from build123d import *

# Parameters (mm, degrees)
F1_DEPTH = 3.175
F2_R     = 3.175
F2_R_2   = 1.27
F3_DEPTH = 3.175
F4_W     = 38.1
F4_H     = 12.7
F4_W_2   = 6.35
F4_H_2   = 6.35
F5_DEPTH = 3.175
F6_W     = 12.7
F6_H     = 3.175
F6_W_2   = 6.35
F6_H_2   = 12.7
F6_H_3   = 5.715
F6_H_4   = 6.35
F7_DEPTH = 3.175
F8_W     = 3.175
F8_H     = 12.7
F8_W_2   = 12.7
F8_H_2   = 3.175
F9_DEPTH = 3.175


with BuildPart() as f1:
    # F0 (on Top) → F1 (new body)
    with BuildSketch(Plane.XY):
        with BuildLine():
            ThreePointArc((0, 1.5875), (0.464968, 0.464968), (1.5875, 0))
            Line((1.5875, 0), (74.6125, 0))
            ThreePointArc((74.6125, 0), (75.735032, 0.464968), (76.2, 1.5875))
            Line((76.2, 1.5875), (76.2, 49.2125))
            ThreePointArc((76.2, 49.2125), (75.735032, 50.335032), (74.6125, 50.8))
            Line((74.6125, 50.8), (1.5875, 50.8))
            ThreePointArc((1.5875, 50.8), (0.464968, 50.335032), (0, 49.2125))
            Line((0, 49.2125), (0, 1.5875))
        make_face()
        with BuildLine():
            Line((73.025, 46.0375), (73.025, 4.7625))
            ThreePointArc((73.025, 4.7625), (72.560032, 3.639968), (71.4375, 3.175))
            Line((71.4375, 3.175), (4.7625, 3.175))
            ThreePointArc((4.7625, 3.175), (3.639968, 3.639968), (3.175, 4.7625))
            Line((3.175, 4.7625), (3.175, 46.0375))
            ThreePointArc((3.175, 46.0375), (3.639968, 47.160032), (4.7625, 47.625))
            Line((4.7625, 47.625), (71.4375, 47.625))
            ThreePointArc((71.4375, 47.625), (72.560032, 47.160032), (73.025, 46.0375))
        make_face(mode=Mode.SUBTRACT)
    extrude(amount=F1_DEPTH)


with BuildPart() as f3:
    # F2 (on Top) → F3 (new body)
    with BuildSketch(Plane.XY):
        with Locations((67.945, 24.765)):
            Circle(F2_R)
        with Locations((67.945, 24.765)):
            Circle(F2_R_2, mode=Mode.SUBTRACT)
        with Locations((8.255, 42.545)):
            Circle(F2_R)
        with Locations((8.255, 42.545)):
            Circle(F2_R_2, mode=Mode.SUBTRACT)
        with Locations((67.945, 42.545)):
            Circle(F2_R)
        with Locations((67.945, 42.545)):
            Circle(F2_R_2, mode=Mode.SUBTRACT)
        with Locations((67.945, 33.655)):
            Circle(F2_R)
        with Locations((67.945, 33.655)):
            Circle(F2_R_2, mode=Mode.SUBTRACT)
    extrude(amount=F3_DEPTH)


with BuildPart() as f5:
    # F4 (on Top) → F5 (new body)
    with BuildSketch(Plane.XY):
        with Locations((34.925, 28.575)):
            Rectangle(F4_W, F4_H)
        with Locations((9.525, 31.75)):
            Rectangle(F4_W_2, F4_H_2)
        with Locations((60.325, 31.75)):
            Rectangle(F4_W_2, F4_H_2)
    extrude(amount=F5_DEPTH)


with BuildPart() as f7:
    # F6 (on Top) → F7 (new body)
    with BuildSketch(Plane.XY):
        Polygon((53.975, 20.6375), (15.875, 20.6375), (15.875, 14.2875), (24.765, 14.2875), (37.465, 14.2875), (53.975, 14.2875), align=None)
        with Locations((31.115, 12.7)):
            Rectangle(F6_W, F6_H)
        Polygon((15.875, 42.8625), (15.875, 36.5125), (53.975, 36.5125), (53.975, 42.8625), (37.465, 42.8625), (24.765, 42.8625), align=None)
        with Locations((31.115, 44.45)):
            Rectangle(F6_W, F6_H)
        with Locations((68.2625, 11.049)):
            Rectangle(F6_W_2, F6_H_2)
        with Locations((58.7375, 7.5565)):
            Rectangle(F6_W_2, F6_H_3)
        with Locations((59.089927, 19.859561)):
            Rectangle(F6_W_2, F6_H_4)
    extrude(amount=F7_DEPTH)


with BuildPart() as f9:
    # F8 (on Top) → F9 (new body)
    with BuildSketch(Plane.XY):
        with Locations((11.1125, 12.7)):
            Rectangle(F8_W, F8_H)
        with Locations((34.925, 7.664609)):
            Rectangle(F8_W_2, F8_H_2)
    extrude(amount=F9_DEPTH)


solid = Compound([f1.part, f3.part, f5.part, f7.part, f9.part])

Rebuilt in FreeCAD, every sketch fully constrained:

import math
import FreeCAD as App
import Part
import Sketcher
Q = App.Units.Quantity

doc = App.newDocument("Part")
body = doc.addObject("PartDesign::Body", "Body")

sketch1 = body.newObject("Sketcher::SketchObject", "Sketch")
sketch1.AttachmentSupport = (doc.getObject("XY_Plane"), [""])
sketch1.MapMode = "FlatFace"
sketch1.addGeometry([
    Part.ArcOfCircle(Part.Circle(App.Vector(1.6, 1.6, 0), App.Vector(0, 0, 1), 1.6), math.radians(-180), math.radians(-90)),
    Part.LineSegment(App.Vector(1.6, 0, 0), App.Vector(74.6, 0, 0)),
    Part.ArcOfCircle(Part.Circle(App.Vector(74.6, 1.6, 0), App.Vector(0, 0, 1), 1.6), math.radians(-90), math.radians(0)),
    Part.LineSegment(App.Vector(76.2, 1.6, 0), App.Vector(76.2, 49.2, 0)),
    Part.ArcOfCircle(Part.Circle(App.Vector(74.6, 49.2, 0), App.Vector(0, 0, 1), 1.6), math.radians(0), math.radians(90)),
    Part.LineSegment(App.Vector(74.6, 50.8, 0), App.Vector(1.6, 50.8, 0)),
    Part.ArcOfCircle(Part.Circle(App.Vector(1.6, 49.2, 0), App.Vector(0, 0, 1), 1.6), math.radians(90), math.radians(180)),
    Part.LineSegment(App.Vector(0, 49.2, 0), App.Vector(0, 1.6, 0)),
    Part.ArcOfCircle(Part.Circle(App.Vector(71.4, 46, 0), App.Vector(0, 0, 1), 1.6), math.radians(0), math.radians(90)),
    Part.LineSegment(App.Vector(73, 46, 0), App.Vector(73, 4.8, 0)),
    Part.ArcOfCircle(Part.Circle(App.Vector(71.4, 4.8, 0), App.Vector(0, 0, 1), 1.6), math.radians(-90), math.radians(0)),
    Part.LineSegment(App.Vector(71.4, 3.2, 0), App.Vector(4.8, 3.2, 0)),
    Part.ArcOfCircle(Part.Circle(App.Vector(4.8, 4.8, 0), App.Vector(0, 0, 1), 1.6), math.radians(-180), math.radians(-90)),
    Part.LineSegment(App.Vector(3.2, 4.8, 0), App.Vector(3.2, 46, 0)),
    Part.ArcOfCircle(Part.Circle(App.Vector(4.8, 46, 0), App.Vector(0, 0, 1), 1.6), math.radians(90), math.radians(180)),
    Part.LineSegment(App.Vector(4.8, 47.6, 0), App.Vector(71.4, 47.6, 0)),
], False)
sketch1.addConstraint([
    Sketcher.Constraint("Tangent", 0, 2, 1, 1),
    Sketcher.Constraint("Tangent", 1, 2, 2, 1),
    Sketcher.Constraint("Tangent", 2, 2, 3, 1),
    Sketcher.Constraint("Tangent", 3, 2, 4, 1),
    Sketcher.Constraint("Tangent", 4, 2, 5, 1),
    Sketcher.Constraint("Tangent", 5, 2, 6, 1),
    Sketcher.Constraint("Tangent", 6, 2, 7, 1),
    Sketcher.Constraint("Tangent", 7, 2, 0, 1),
    Sketcher.Constraint("Tangent", 8, 1, 9, 1),
    Sketcher.Constraint("Tangent", 9, 2, 10, 2),
    Sketcher.Constraint("Tangent", 10, 1, 11, 1),
    Sketcher.Constraint("Tangent", 11, 2, 12, 2),
    Sketcher.Constraint("Tangent", 12, 1, 13, 1),
    Sketcher.Constraint("Tangent", 13, 2, 14, 2),
    Sketcher.Constraint("Tangent", 14, 1, 15, 1),
    Sketcher.Constraint("Tangent", 15, 2, 8, 2),
    Sketcher.Constraint("Horizontal", 1),
    Sketcher.Constraint("Vertical", 3),
    Sketcher.Constraint("Horizontal", 5),
    Sketcher.Constraint("Vertical", 7),
    Sketcher.Constraint("Vertical", 9),
    Sketcher.Constraint("Horizontal", 11),
    Sketcher.Constraint("Vertical", 13),
    Sketcher.Constraint("Horizontal", 15),
    Sketcher.Constraint("Equal", 0, 2),
    Sketcher.Constraint("Equal", 2, 4),
    Sketcher.Constraint("Equal", 4, 6),
    Sketcher.Constraint("Equal", 6, 8),
    Sketcher.Constraint("Equal", 8, 10),
    Sketcher.Constraint("Equal", 10, 12),
    Sketcher.Constraint("Equal", 12, 14),
    Sketcher.Constraint("PointOnObject", 0, 2, -1),
    Sketcher.Constraint("PointOnObject", 6, 2, -2),
    Sketcher.Constraint("DistanceX", -1, 1, 2, 2, Q("3 in")),
    Sketcher.Constraint("DistanceY", -1, 1, 4, 2, Q("2 in")),
    Sketcher.Constraint("Radius", 0, Q("0.0625 in")),
    Sketcher.Constraint("DistanceX", 11, 2, 11, 1, Q("2.625 in")),
    Sketcher.Constraint("DistanceY", 9, 2, 9, 1, Q("1.625 in")),
    Sketcher.Constraint("DistanceY", 2, 3, 8, 3, Q("1.75 in")),
    Sketcher.Constraint("DistanceX", 6, 3, 8, 3, Q("2.75 in")),
])
pad1 = body.newObject("PartDesign::Pad", "Pad")
pad1.Profile = sketch1
pad1.Length = Q("0.125 in")
body2 = doc.addObject("PartDesign::Body", "Body001")
body2.AllowCompound = True

sketch2 = body2.newObject("Sketcher::SketchObject", "Sketch001")
sketch2.AttachmentSupport = (doc.getObject("XY_Plane001"), [""])
sketch2.MapMode = "FlatFace"
sketch2.addGeometry([
    Part.Circle(App.Vector(67.9, 24.8, 0), App.Vector(0, 0, 1), 3.2),
    Part.Circle(App.Vector(67.9, 24.8, 0), App.Vector(0, 0, 1), 1.3),
    Part.Circle(App.Vector(8.3, 42.5, 0), App.Vector(0, 0, 1), 3.2),
    Part.Circle(App.Vector(8.3, 42.5, 0), App.Vector(0, 0, 1), 1.3),
    Part.Circle(App.Vector(67.9, 42.5, 0), App.Vector(0, 0, 1), 3.2),
    Part.Circle(App.Vector(67.9, 42.5, 0), App.Vector(0, 0, 1), 1.3),
    Part.Circle(App.Vector(67.9, 33.7, 0), App.Vector(0, 0, 1), 3.2),
    Part.Circle(App.Vector(67.9, 33.7, 0), App.Vector(0, 0, 1), 1.3),
], False)
sketch2.addConstraint([
    Sketcher.Constraint("Coincident", 1, 3, 0, 3),
    Sketcher.Constraint("Coincident", 3, 3, 2, 3),
    Sketcher.Constraint("Coincident", 5, 3, 4, 3),
    Sketcher.Constraint("Coincident", 7, 3, 6, 3),
    Sketcher.Constraint("Equal", 0, 2),
    Sketcher.Constraint("Equal", 1, 3),
    Sketcher.Constraint("Equal", 2, 4),
    Sketcher.Constraint("Equal", 3, 5),
    Sketcher.Constraint("Equal", 4, 6),
    Sketcher.Constraint("Equal", 5, 7),
    Sketcher.Constraint("Horizontal", 3, 3, 4, 3),
    Sketcher.Constraint("Vertical", 1, 3, 4, 3),
    Sketcher.Constraint("Vertical", 5, 3, 6, 3),
    Sketcher.Constraint("Diameter", 1, Q("0.1 in")),
    Sketcher.Constraint("Diameter", 0, Q("0.25 in")),
    Sketcher.Constraint("DistanceY", 0, 3, 2, 3, Q("0.7 in")),
    Sketcher.Constraint("DistanceX", 2, 3, 0, 3, Q("2.35 in")),
    Sketcher.Constraint("DistanceY", 0, 3, 6, 3, Q("0.35 in")),
    Sketcher.Constraint("DistanceX", -1, 1, 0, 3, Q("2.675 in")),
    Sketcher.Constraint("DistanceY", -1, 1, 0, 3, Q("0.975 in")),
])
pad2 = body2.newObject("PartDesign::Pad", "Pad001")
pad2.Profile = sketch2
pad2.Length = Q("0.125 in")
body3 = doc.addObject("PartDesign::Body", "Body002")
body3.AllowCompound = True

sketch3 = body3.newObject("Sketcher::SketchObject", "Sketch002")
sketch3.AttachmentSupport = (doc.getObject("XY_Plane002"), [""])
sketch3.MapMode = "FlatFace"
sketch3.addGeometry([
    Part.LineSegment(App.Vector(16, 35, 0), App.Vector(16, 22, 0)),
    Part.LineSegment(App.Vector(16, 22, 0), App.Vector(54, 22, 0)),
    Part.LineSegment(App.Vector(54, 22, 0), App.Vector(54, 35, 0)),
    Part.LineSegment(App.Vector(54, 35, 0), App.Vector(16, 35, 0)),
    Part.LineSegment(App.Vector(6, 35, 0), App.Vector(6, 29, 0)),
    Part.LineSegment(App.Vector(6, 29, 0), App.Vector(13, 29, 0)),
    Part.LineSegment(App.Vector(13, 29, 0), App.Vector(13, 35, 0)),
    Part.LineSegment(App.Vector(13, 35, 0), App.Vector(6, 35, 0)),
    Part.LineSegment(App.Vector(57, 35, 0), App.Vector(57, 29, 0)),
    Part.LineSegment(App.Vector(57, 29, 0), App.Vector(64, 29, 0)),
    Part.LineSegment(App.Vector(64, 29, 0), App.Vector(64, 35, 0)),
    Part.LineSegment(App.Vector(64, 35, 0), App.Vector(57, 35, 0)),
], False)
sketch3.addConstraint([
    Sketcher.Constraint("Coincident", 0, 2, 1, 1),
    Sketcher.Constraint("Coincident", 1, 2, 2, 1),
    Sketcher.Constraint("Coincident", 2, 2, 3, 1),
    Sketcher.Constraint("Coincident", 3, 2, 0, 1),
    Sketcher.Constraint("Coincident", 4, 2, 5, 1),
    Sketcher.Constraint("Coincident", 5, 2, 6, 1),
    Sketcher.Constraint("Coincident", 6, 2, 7, 1),
    Sketcher.Constraint("Coincident", 7, 2, 4, 1),
    Sketcher.Constraint("Coincident", 8, 2, 9, 1),
    Sketcher.Constraint("Coincident", 9, 2, 10, 1),
    Sketcher.Constraint("Coincident", 10, 2, 11, 1),
    Sketcher.Constraint("Coincident", 11, 2, 8, 1),
    Sketcher.Constraint("Vertical", 0),
    Sketcher.Constraint("Horizontal", 1),
    Sketcher.Constraint("Vertical", 2),
    Sketcher.Constraint("Horizontal", 3),
    Sketcher.Constraint("Vertical", 4),
    Sketcher.Constraint("Horizontal", 5),
    Sketcher.Constraint("Vertical", 6),
    Sketcher.Constraint("Horizontal", 7),
    Sketcher.Constraint("Vertical", 8),
    Sketcher.Constraint("Horizontal", 9),
    Sketcher.Constraint("Vertical", 10),
    Sketcher.Constraint("Horizontal", 11),
    Sketcher.Constraint("Horizontal", 3, 2, 6, 2),
    Sketcher.Constraint("Horizontal", 5, 2, 8, 2),
    Sketcher.Constraint("Horizontal", 7, 2, 10, 2),
    Sketcher.Constraint("Equal", 7, 9),
    Sketcher.Constraint("Equal", 11, 4),
    Sketcher.Constraint("DistanceX", 1, 1, 1, 2, Q("1.5 in")),
    Sketcher.Constraint("DistanceY", 0, 2, 0, 1, Q("0.5 in")),
    Sketcher.Constraint("DistanceX", 5, 1, 5, 2, Q("0.25 in")),
    Sketcher.Constraint("DistanceX", -1, 1, 5, 2, Q("0.5 in")),
    Sketcher.Constraint("DistanceX", -1, 1, 9, 2, Q("2.5 in")),
    Sketcher.Constraint("DistanceX", -1, 1, 0, 2, Q("0.625 in")),
    Sketcher.Constraint("DistanceY", -1, 1, 0, 2, Q("0.875 in")),
])
pad3 = body3.newObject("PartDesign::Pad", "Pad002")
pad3.Profile = sketch3
pad3.Length = Q("0.125 in")
body4 = doc.addObject("PartDesign::Body", "Body003")
body4.AllowCompound = True

sketch4 = body4.newObject("Sketcher::SketchObject", "Sketch003")
sketch4.AttachmentSupport = (doc.getObject("XY_Plane003"), [""])
sketch4.MapMode = "FlatFace"
sketch4.addGeometry([
    Part.LineSegment(App.Vector(54, 20.6, 0), App.Vector(15.9, 20.6, 0)),
    Part.LineSegment(App.Vector(15.9, 20.6, 0), App.Vector(15.9, 14.3, 0)),
    Part.LineSegment(App.Vector(15.9, 14.3, 0), App.Vector(24.8, 14.3, 0)),
    Part.LineSegment(App.Vector(24.8, 14.3, 0), App.Vector(24.8, 11.1, 0)),
    Part.LineSegment(App.Vector(24.8, 11.1, 0), App.Vector(37.5, 11.1, 0)),
    Part.LineSegment(App.Vector(37.5, 11.1, 0), App.Vector(37.5, 14.3, 0)),
    Part.LineSegment(App.Vector(37.5, 14.3, 0), App.Vector(54, 14.3, 0)),
    Part.LineSegment(App.Vector(54, 14.3, 0), App.Vector(54, 20.6, 0)),
    Part.LineSegment(App.Vector(15.9, 42.9, 0), App.Vector(15.9, 36.5, 0)),
    Part.LineSegment(App.Vector(15.9, 36.5, 0), App.Vector(54, 36.5, 0)),
    Part.LineSegment(App.Vector(54, 36.5, 0), App.Vector(54, 42.9, 0)),
    Part.LineSegment(App.Vector(54, 42.9, 0), App.Vector(37.5, 42.9, 0)),
    Part.LineSegment(App.Vector(37.5, 42.9, 0), App.Vector(37.5, 46, 0)),
    Part.LineSegment(App.Vector(37.5, 46, 0), App.Vector(24.8, 46, 0)),
    Part.LineSegment(App.Vector(24.8, 46, 0), App.Vector(24.8, 42.9, 0)),
    Part.LineSegment(App.Vector(24.8, 42.9, 0), App.Vector(15.9, 42.9, 0)),
    Part.LineSegment(App.Vector(65.1, 17.4, 0), App.Vector(65.1, 4.7, 0)),
    Part.LineSegment(App.Vector(65.1, 4.7, 0), App.Vector(71.4, 4.7, 0)),
    Part.LineSegment(App.Vector(71.4, 4.7, 0), App.Vector(71.4, 17.4, 0)),
    Part.LineSegment(App.Vector(71.4, 17.4, 0), App.Vector(65.1, 17.4, 0)),
    Part.LineSegment(App.Vector(55.6, 10.4, 0), App.Vector(55.6, 4.7, 0)),
    Part.LineSegment(App.Vector(55.6, 4.7, 0), App.Vector(61.9, 4.7, 0)),
    Part.LineSegment(App.Vector(61.9, 4.7, 0), App.Vector(61.9, 10.4, 0)),
    Part.LineSegment(App.Vector(61.9, 10.4, 0), App.Vector(55.6, 10.4, 0)),
    Part.LineSegment(App.Vector(55.9, 23, 0), App.Vector(55.9, 16.7, 0)),
    Part.LineSegment(App.Vector(55.9, 16.7, 0), App.Vector(62.3, 16.7, 0)),
    Part.LineSegment(App.Vector(62.3, 16.7, 0), App.Vector(62.3, 23, 0)),
    Part.LineSegment(App.Vector(62.3, 23, 0), App.Vector(55.9, 23, 0)),
], False)
sketch4.addConstraint([
    Sketcher.Constraint("Coincident", 0, 2, 1, 1),
    Sketcher.Constraint("Coincident", 1, 2, 2, 1),
    Sketcher.Constraint("Coincident", 2, 2, 3, 1),
    Sketcher.Constraint("Coincident", 3, 2, 4, 1),
    Sketcher.Constraint("Coincident", 4, 2, 5, 1),
    Sketcher.Constraint("Coincident", 5, 2, 6, 1),
    Sketcher.Constraint("Coincident", 6, 2, 7, 1),
    Sketcher.Constraint("Coincident", 7, 2, 0, 1),
    Sketcher.Constraint("Coincident", 8, 2, 9, 1),
    Sketcher.Constraint("Coincident", 9, 2, 10, 1),
    Sketcher.Constraint("Coincident", 10, 2, 11, 1),
    Sketcher.Constraint("Coincident", 11, 2, 12, 1),
    Sketcher.Constraint("Coincident", 12, 2, 13, 1),
    Sketcher.Constraint("Coincident", 13, 2, 14, 1),
    Sketcher.Constraint("Coincident", 14, 2, 15, 1),
    Sketcher.Constraint("Coincident", 15, 2, 8, 1),
    Sketcher.Constraint("Coincident", 16, 2, 17, 1),
    Sketcher.Constraint("Coincident", 17, 2, 18, 1),
    Sketcher.Constraint("Coincident", 18, 2, 19, 1),
    Sketcher.Constraint("Coincident", 19, 2, 16, 1),
    Sketcher.Constraint("Coincident", 20, 2, 21, 1),
    Sketcher.Constraint("Coincident", 21, 2, 22, 1),
    Sketcher.Constraint("Coincident", 22, 2, 23, 1),
    Sketcher.Constraint("Coincident", 23, 2, 20, 1),
    Sketcher.Constraint("Coincident", 24, 2, 25, 1),
    Sketcher.Constraint("Coincident", 25, 2, 26, 1),
    Sketcher.Constraint("Coincident", 26, 2, 27, 1),
    Sketcher.Constraint("Coincident", 27, 2, 24, 1),
    Sketcher.Constraint("Horizontal", 0),
    Sketcher.Constraint("Vertical", 1),
    Sketcher.Constraint("Horizontal", 2),
    Sketcher.Constraint("Vertical", 3),
    Sketcher.Constraint("Horizontal", 4),
    Sketcher.Constraint("Vertical", 5),
    Sketcher.Constraint("Horizontal", 6),
    Sketcher.Constraint("Vertical", 7),
    Sketcher.Constraint("Vertical", 8),
    Sketcher.Constraint("Horizontal", 9),
    Sketcher.Constraint("Vertical", 10),
    Sketcher.Constraint("Horizontal", 11),
    Sketcher.Constraint("Vertical", 12),
    Sketcher.Constraint("Horizontal", 13),
    Sketcher.Constraint("Vertical", 14),
    Sketcher.Constraint("Horizontal", 15),
    Sketcher.Constraint("Vertical", 16),
    Sketcher.Constraint("Horizontal", 17),
    Sketcher.Constraint("Vertical", 18),
    Sketcher.Constraint("Horizontal", 19),
    Sketcher.Constraint("Vertical", 20),
    Sketcher.Constraint("Horizontal", 21),
    Sketcher.Constraint("Vertical", 22),
    Sketcher.Constraint("Horizontal", 23),
    Sketcher.Constraint("Vertical", 24),
    Sketcher.Constraint("Horizontal", 25),
    Sketcher.Constraint("Vertical", 26),
    Sketcher.Constraint("Horizontal", 27),
    Sketcher.Constraint("Horizontal", 2, 2, 5, 2),
    Sketcher.Constraint("Horizontal", 11, 2, 14, 2),
    Sketcher.Constraint("Horizontal", 17, 2, 20, 2),
    Sketcher.Constraint("Vertical", 1, 2, 8, 2),
    Sketcher.Constraint("Vertical", 7, 2, 9, 2),
    Sketcher.Constraint("Vertical", 5, 2, 11, 2),
    Sketcher.Constraint("Vertical", 3, 2, 13, 2),
    Sketcher.Constraint("Equal", 19, 21),
    Sketcher.Constraint("Equal", 23, 25),
    Sketcher.Constraint("Equal", 27, 1),
    Sketcher.Constraint("Equal", 7, 8),
    Sketcher.Constraint("Equal", 5, 12),
    Sketcher.Constraint("Equal", 13, 16),
    Sketcher.Constraint("Equal", 10, 24),
    Sketcher.Constraint("DistanceX", 0, 2, 0, 1, Q("1.5 in")),
    Sketcher.Constraint("DistanceX", 4, 1, 4, 2, Q("0.5 in")),
    Sketcher.Constraint("DistanceY", 3, 2, 8, 2, Q("1 in")),
    Sketcher.Constraint("DistanceX", 2, 1, 2, 2, Q("0.35 in")),
    Sketcher.Constraint("DistanceX", 17, 1, 17, 2, Q("0.25 in")),
    Sketcher.Constraint("DistanceY", 3, 2, 3, 1, Q("0.125 in")),
    Sketcher.Constraint("DistanceY", 20, 2, 20, 1, Q("0.225 in")),
    Sketcher.Constraint("DistanceY", -1, 1, 22, 2, Q("0.41 in")),
    Sketcher.Constraint("DistanceX", -1, 1, 0, 2, Q("0.625 in")),
    Sketcher.Constraint("DistanceY", -1, 1, 0, 2, Q("0.8125 in")),
    Sketcher.Constraint("DistanceX", -1, 1, 16, 2, Q("2.5625 in")),
    Sketcher.Constraint("DistanceX", -1, 1, 20, 2, Q("2.1875 in")),
    Sketcher.Constraint("DistanceY", -1, 1, 24, 2, Q("16.684561 mm")),
    Sketcher.Constraint("DistanceX", -1, 1, 24, 2, Q("55.914927 mm")),
])
pad4 = body4.newObject("PartDesign::Pad", "Pad003")
pad4.Profile = sketch4
pad4.Length = Q("0.125 in")
body5 = doc.addObject("PartDesign::Body", "Body004")
body5.AllowCompound = True

sketch5 = body5.newObject("Sketcher::SketchObject", "Sketch004")
sketch5.AttachmentSupport = (doc.getObject("XY_Plane004"), [""])
sketch5.MapMode = "FlatFace"
sketch5.addGeometry([
    Part.LineSegment(App.Vector(9.5, 19.1, 0), App.Vector(9.5, 6.3, 0)),
    Part.LineSegment(App.Vector(9.5, 6.3, 0), App.Vector(12.7, 6.3, 0)),
    Part.LineSegment(App.Vector(12.7, 6.3, 0), App.Vector(12.7, 19.1, 0)),
    Part.LineSegment(App.Vector(12.7, 19.1, 0), App.Vector(9.5, 19.1, 0)),
    Part.LineSegment(App.Vector(28.6, 9.3, 0), App.Vector(28.6, 6.1, 0)),
    Part.LineSegment(App.Vector(28.6, 6.1, 0), App.Vector(41.3, 6.1, 0)),
    Part.LineSegment(App.Vector(41.3, 6.1, 0), App.Vector(41.3, 9.3, 0)),
    Part.LineSegment(App.Vector(41.3, 9.3, 0), App.Vector(28.6, 9.3, 0)),
], False)
sketch5.addConstraint([
    Sketcher.Constraint("Coincident", 0, 2, 1, 1),
    Sketcher.Constraint("Coincident", 1, 2, 2, 1),
    Sketcher.Constraint("Coincident", 2, 2, 3, 1),
    Sketcher.Constraint("Coincident", 3, 2, 0, 1),
    Sketcher.Constraint("Coincident", 4, 2, 5, 1),
    Sketcher.Constraint("Coincident", 5, 2, 6, 1),
    Sketcher.Constraint("Coincident", 6, 2, 7, 1),
    Sketcher.Constraint("Coincident", 7, 2, 4, 1),
    Sketcher.Constraint("Vertical", 0),
    Sketcher.Constraint("Horizontal", 1),
    Sketcher.Constraint("Vertical", 2),
    Sketcher.Constraint("Horizontal", 3),
    Sketcher.Constraint("Vertical", 4),
    Sketcher.Constraint("Horizontal", 5),
    Sketcher.Constraint("Vertical", 6),
    Sketcher.Constraint("Horizontal", 7),
    Sketcher.Constraint("Equal", 7, 0),
    Sketcher.Constraint("Equal", 3, 4),
    Sketcher.Constraint("DistanceX", 5, 1, 5, 2, Q("0.5 in")),
    Sketcher.Constraint("DistanceX", -1, 1, 1, 2, Q("0.5 in")),
    Sketcher.Constraint("DistanceX", 1, 1, 1, 2, Q("0.125 in")),
    Sketcher.Constraint("DistanceY", -1, 1, 0, 2, Q("0.25 in")),
    Sketcher.Constraint("DistanceX", 0, 2, 4, 2, Q("0.75 in")),
    Sketcher.Constraint("DistanceY", -1, 1, 4, 2, Q("6.077109 mm")),
])
pad5 = body5.newObject("PartDesign::Pad", "Pad004")
pad5.Profile = sketch5
pad5.Length = Q("0.125 in")

doc.recompute()
